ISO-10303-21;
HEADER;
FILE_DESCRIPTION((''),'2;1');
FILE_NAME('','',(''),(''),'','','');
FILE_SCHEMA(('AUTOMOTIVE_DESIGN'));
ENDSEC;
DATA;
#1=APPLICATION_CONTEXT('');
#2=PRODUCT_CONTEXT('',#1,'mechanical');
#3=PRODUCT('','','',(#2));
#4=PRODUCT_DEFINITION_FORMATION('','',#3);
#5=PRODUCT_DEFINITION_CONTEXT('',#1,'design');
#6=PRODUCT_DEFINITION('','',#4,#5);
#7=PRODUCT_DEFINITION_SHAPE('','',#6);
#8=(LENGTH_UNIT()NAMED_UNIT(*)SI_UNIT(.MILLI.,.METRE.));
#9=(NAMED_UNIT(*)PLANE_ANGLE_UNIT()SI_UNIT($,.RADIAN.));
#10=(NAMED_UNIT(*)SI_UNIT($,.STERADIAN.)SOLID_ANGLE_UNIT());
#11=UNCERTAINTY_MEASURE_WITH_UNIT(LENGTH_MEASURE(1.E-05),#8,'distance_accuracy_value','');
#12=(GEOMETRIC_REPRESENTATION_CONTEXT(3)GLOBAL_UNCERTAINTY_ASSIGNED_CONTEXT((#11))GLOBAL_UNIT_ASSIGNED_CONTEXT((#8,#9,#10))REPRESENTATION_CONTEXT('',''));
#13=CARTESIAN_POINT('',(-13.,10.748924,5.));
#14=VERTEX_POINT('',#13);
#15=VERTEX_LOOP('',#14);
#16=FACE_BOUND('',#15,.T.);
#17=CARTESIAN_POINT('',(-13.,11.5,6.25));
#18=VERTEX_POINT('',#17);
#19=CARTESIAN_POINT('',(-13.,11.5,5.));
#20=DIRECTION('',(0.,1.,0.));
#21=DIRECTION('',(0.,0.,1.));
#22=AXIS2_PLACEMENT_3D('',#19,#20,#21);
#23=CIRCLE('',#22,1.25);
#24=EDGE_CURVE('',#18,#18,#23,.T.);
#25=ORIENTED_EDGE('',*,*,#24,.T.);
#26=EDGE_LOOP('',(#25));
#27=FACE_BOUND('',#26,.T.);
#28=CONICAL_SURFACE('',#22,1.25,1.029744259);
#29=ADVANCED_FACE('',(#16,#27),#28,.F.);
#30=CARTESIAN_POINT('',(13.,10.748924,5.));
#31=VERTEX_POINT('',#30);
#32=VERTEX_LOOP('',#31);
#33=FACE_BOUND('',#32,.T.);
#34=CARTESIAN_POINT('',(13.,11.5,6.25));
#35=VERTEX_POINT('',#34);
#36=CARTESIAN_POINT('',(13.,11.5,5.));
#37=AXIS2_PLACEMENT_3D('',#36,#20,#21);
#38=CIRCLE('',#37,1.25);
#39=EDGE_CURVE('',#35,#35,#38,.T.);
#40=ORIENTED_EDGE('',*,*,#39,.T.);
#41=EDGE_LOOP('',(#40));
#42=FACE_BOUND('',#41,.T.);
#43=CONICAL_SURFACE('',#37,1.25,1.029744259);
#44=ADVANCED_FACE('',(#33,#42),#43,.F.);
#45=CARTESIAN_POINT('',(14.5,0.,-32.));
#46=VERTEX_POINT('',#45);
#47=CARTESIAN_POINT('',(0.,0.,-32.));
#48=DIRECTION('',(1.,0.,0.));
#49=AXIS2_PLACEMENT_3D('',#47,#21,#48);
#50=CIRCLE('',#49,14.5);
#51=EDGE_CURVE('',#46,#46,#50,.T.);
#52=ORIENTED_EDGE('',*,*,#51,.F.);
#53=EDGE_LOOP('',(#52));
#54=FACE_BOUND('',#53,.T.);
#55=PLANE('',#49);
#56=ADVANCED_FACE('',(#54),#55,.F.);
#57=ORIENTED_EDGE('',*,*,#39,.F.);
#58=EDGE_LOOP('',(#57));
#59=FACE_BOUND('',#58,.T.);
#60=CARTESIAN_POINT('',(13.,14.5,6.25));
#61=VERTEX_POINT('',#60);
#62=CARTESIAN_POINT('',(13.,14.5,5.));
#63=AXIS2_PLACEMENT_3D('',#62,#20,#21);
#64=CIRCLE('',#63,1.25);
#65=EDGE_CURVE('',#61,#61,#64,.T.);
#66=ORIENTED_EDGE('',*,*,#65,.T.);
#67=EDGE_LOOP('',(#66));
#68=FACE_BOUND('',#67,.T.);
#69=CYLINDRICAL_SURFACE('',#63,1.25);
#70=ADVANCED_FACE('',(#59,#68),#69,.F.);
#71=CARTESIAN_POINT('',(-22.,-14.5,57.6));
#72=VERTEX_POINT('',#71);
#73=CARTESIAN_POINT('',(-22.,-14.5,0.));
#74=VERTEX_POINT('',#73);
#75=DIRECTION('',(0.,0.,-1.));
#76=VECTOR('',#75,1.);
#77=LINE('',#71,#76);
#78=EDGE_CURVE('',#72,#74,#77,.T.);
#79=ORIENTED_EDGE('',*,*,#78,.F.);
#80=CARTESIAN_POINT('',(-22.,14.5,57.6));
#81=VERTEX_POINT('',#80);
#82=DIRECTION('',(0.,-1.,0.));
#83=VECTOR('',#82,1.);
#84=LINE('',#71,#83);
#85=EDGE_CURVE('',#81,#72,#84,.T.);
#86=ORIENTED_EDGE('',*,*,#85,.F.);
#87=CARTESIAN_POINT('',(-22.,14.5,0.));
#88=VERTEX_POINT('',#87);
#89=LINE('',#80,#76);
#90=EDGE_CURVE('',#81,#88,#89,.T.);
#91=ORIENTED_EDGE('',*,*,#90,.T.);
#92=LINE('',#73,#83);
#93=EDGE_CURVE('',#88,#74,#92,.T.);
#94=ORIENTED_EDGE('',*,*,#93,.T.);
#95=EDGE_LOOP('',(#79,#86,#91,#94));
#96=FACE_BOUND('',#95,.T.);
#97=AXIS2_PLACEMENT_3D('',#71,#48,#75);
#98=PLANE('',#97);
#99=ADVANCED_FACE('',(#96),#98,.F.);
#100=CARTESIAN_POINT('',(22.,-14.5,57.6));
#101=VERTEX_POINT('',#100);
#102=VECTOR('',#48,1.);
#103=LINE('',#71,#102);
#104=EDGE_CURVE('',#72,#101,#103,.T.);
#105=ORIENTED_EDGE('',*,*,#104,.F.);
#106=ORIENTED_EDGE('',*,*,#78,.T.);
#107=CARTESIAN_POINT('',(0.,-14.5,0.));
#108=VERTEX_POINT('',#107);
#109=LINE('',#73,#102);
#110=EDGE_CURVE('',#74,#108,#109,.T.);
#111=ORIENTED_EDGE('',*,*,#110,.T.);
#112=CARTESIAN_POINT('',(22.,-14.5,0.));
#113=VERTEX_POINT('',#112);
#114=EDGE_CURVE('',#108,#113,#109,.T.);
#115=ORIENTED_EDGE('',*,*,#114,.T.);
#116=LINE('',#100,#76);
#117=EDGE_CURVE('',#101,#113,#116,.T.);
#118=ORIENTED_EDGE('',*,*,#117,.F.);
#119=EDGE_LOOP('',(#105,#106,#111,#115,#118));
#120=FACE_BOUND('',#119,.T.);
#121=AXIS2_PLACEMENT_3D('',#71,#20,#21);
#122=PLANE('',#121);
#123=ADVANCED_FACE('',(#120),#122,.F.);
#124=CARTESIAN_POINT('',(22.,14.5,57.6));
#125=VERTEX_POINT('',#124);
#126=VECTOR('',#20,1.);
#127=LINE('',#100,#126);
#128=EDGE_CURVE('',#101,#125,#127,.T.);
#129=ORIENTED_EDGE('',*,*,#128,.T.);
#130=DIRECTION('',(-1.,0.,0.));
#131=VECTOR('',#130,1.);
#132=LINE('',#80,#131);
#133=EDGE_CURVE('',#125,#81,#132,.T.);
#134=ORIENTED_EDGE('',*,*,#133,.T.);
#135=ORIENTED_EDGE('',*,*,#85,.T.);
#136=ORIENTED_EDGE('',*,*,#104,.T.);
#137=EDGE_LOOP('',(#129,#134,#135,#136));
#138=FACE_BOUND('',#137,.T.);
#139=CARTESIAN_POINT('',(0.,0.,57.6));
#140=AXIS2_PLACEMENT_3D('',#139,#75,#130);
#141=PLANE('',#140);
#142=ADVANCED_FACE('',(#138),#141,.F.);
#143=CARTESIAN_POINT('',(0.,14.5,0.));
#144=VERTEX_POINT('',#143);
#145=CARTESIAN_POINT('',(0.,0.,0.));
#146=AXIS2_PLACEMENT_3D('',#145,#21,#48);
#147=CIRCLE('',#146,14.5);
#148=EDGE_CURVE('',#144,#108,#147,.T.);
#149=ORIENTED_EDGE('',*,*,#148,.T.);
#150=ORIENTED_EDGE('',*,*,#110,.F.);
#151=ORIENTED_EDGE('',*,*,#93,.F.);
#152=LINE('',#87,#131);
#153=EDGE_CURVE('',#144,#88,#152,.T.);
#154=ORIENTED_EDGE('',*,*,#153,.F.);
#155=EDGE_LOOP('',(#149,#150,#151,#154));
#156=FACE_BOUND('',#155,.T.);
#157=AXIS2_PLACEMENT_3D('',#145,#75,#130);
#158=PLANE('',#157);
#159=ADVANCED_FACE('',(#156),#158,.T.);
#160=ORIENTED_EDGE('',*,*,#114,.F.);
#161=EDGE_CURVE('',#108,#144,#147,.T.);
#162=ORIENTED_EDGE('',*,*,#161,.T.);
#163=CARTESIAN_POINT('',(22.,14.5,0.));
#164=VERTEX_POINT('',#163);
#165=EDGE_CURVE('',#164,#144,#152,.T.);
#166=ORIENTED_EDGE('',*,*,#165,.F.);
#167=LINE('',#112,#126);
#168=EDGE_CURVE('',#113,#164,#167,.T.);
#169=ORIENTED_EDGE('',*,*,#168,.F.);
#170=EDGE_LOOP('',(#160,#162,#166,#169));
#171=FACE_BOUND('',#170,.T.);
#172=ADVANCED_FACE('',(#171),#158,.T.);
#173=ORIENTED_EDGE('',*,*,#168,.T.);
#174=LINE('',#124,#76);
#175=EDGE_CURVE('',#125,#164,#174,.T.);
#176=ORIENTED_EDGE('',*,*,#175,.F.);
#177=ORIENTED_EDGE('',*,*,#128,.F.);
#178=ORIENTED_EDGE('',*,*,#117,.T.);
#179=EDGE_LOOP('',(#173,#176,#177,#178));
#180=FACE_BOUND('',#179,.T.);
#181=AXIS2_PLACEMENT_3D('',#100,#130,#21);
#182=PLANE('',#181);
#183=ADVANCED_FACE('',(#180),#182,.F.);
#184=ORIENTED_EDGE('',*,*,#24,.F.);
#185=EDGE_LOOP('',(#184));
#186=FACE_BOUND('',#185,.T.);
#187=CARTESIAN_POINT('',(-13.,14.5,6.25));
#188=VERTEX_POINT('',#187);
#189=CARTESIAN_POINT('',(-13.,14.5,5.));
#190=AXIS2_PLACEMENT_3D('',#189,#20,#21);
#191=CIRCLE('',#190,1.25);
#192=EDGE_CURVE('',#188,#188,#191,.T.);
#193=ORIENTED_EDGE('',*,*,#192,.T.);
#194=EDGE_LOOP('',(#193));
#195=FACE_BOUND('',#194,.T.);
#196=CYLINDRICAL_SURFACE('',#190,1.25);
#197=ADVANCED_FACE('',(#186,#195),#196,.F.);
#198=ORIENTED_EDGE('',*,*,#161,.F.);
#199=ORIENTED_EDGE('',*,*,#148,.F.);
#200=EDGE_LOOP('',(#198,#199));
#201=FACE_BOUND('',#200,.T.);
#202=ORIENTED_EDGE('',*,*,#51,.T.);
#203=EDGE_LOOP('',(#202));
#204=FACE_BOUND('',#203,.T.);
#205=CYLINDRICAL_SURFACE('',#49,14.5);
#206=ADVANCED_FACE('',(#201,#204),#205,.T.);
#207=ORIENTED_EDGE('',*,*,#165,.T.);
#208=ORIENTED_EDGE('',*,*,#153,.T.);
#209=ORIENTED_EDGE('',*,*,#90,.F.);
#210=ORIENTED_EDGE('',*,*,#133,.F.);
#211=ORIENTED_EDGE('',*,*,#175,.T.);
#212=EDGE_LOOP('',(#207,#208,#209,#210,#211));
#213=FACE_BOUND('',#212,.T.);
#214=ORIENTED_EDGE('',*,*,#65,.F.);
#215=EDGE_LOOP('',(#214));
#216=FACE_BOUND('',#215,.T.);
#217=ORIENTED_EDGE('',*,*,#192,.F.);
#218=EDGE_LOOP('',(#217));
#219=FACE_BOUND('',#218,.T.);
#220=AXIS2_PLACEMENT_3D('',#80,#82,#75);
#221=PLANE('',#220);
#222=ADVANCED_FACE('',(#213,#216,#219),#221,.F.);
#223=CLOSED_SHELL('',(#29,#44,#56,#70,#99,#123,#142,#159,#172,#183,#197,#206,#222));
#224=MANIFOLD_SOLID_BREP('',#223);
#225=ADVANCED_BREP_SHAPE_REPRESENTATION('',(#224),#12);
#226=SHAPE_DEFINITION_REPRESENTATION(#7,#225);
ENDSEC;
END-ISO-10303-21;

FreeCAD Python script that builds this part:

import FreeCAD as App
import Part
import Sketcher


def add_polygon(sketch, points):
    """Adds a closed chain of lines whose ends are joined by coincident constraints."""
    first, n = sketch.GeometryCount, len(points)
    for a, b in zip(points, points[1:] + points[:1]):
        sketch.addGeometry(Part.LineSegment(App.Vector(*a, 0), App.Vector(*b, 0)), False)
    for i in range(n):
        sketch.addConstraint(Sketcher.Constraint("Coincident", first + i, 2, first + (i + 1) % n, 1))

doc = App.newDocument("Part")
params = doc.addObject("Spreadsheet::Sheet", "Params")
for row, (alias, value) in enumerate([
    ("sketch1_width", "44 mm"),
    ("sketch1_height", "29 mm"),
    ("pad1_length", "57.6 mm"),
    ("sketch2_diameter", "29 mm"),
    ("pad2_length", "32 mm"),
    ("sketch3_diameter", "2.5 mm"),
    ("hole_diameter", "2.5 mm"),
    ("hole_depth", "3 mm"),
], start=1):
    params.set(f"A{row}", alias)
    params.set(f"B{row}", "=" + value)
    params.setAlias(f"B{row}", alias)

body = doc.addObject("PartDesign::Body", "Body")

# Sketch on XY plane
sketch1 = body.newObject("Sketcher::SketchObject", "Sketch")
sketch1.AttachmentSupport = (doc.getObject("XY_Plane"), [""])
sketch1.MapMode = "FlatFace"
add_polygon(sketch1, [(-22, 14), (-22, -14), (22, -14), (22, 14)])  # lines 0-3
sketch1.addConstraint([
    Sketcher.Constraint("Vertical", 0),
    Sketcher.Constraint("Horizontal", 1),
    Sketcher.Constraint("Vertical", 2),
    Sketcher.Constraint("Horizontal", 3),
    Sketcher.Constraint("Symmetric", 0, 2, 2, 2, -1, 1),
    Sketcher.Constraint("DistanceX", 1, 1, 1, 2, 44.0),
    Sketcher.Constraint("DistanceY", 0, 2, 0, 1, 29.0),
])
sketch1.setExpression("Constraints[9]", "Params.sketch1_width")
sketch1.setExpression("Constraints[10]", "Params.sketch1_height")
pad1 = body.newObject("PartDesign::Pad", "Pad")
pad1.Profile = sketch1
pad1.setExpression("Length", "Params.pad1_length")

# Sketch on XY plane
sketch2 = body.newObject("Sketcher::SketchObject", "Sketch001")
sketch2.AttachmentSupport = (doc.getObject("XY_Plane"), [""])
sketch2.MapMode = "FlatFace"
sketch2.addGeometry(Part.Circle(App.Vector(0, 0, 0), App.Vector(0, 0, 1), 14), False)
sketch2.addConstraint([
    Sketcher.Constraint("Coincident", 0, 3, -1, 1),
    Sketcher.Constraint("Diameter", 0, 29.0),
])
sketch2.setExpression("Constraints[1]", "Params.sketch2_diameter")
pad2 = body.newObject("PartDesign::Pad", "Pad001")
pad2.Profile = sketch2
pad2.setExpression("Length", "Params.pad2_length")
pad2.Reversed = True

# Sketch on XZ plane
sketch3 = body.newObject("Sketcher::SketchObject", "Sketch002")
sketch3.AttachmentSupport = (doc.getObject("XZ_Plane"), [""])
sketch3.MapMode = "FlatFace"
sketch3.AttachmentOffset = App.Placement(App.Vector(0, 0, -14.5), App.Rotation())
sketch3.addGeometry([
    Part.Circle(App.Vector(-13, 5, 0), App.Vector(0, 0, 1), 1.2),
    Part.Circle(App.Vector(13, 5, 0), App.Vector(0, 0, 1), 1.2),
], False)
sketch3.addConstraint([
    Sketcher.Constraint("Equal", 0, 1),
    Sketcher.Constraint("Symmetric", 0, 3, 1, 3, -2),
    Sketcher.Constraint("Diameter", 0, 2.5),
    Sketcher.Constraint("DistanceX", 0, 3, -1, 1, 13.0),
    Sketcher.Constraint("DistanceY", -1, 1, 0, 3, 5.0),
])
sketch3.setExpression("Constraints[2]", "Params.sketch3_diameter")
doc.recompute()
hole = body.newObject("PartDesign::Hole", "Hole")
hole.Profile = sketch3
hole.ThreadType = "None"
hole.setExpression("Diameter", "Params.hole_diameter")
hole.DepthType = "Dimension"
hole.setExpression("Depth", "Params.hole_depth")
hole.DrillPoint = "Angled"
hole.DrillPointAngle = 118
hole.Reversed = True

doc.recompute()
